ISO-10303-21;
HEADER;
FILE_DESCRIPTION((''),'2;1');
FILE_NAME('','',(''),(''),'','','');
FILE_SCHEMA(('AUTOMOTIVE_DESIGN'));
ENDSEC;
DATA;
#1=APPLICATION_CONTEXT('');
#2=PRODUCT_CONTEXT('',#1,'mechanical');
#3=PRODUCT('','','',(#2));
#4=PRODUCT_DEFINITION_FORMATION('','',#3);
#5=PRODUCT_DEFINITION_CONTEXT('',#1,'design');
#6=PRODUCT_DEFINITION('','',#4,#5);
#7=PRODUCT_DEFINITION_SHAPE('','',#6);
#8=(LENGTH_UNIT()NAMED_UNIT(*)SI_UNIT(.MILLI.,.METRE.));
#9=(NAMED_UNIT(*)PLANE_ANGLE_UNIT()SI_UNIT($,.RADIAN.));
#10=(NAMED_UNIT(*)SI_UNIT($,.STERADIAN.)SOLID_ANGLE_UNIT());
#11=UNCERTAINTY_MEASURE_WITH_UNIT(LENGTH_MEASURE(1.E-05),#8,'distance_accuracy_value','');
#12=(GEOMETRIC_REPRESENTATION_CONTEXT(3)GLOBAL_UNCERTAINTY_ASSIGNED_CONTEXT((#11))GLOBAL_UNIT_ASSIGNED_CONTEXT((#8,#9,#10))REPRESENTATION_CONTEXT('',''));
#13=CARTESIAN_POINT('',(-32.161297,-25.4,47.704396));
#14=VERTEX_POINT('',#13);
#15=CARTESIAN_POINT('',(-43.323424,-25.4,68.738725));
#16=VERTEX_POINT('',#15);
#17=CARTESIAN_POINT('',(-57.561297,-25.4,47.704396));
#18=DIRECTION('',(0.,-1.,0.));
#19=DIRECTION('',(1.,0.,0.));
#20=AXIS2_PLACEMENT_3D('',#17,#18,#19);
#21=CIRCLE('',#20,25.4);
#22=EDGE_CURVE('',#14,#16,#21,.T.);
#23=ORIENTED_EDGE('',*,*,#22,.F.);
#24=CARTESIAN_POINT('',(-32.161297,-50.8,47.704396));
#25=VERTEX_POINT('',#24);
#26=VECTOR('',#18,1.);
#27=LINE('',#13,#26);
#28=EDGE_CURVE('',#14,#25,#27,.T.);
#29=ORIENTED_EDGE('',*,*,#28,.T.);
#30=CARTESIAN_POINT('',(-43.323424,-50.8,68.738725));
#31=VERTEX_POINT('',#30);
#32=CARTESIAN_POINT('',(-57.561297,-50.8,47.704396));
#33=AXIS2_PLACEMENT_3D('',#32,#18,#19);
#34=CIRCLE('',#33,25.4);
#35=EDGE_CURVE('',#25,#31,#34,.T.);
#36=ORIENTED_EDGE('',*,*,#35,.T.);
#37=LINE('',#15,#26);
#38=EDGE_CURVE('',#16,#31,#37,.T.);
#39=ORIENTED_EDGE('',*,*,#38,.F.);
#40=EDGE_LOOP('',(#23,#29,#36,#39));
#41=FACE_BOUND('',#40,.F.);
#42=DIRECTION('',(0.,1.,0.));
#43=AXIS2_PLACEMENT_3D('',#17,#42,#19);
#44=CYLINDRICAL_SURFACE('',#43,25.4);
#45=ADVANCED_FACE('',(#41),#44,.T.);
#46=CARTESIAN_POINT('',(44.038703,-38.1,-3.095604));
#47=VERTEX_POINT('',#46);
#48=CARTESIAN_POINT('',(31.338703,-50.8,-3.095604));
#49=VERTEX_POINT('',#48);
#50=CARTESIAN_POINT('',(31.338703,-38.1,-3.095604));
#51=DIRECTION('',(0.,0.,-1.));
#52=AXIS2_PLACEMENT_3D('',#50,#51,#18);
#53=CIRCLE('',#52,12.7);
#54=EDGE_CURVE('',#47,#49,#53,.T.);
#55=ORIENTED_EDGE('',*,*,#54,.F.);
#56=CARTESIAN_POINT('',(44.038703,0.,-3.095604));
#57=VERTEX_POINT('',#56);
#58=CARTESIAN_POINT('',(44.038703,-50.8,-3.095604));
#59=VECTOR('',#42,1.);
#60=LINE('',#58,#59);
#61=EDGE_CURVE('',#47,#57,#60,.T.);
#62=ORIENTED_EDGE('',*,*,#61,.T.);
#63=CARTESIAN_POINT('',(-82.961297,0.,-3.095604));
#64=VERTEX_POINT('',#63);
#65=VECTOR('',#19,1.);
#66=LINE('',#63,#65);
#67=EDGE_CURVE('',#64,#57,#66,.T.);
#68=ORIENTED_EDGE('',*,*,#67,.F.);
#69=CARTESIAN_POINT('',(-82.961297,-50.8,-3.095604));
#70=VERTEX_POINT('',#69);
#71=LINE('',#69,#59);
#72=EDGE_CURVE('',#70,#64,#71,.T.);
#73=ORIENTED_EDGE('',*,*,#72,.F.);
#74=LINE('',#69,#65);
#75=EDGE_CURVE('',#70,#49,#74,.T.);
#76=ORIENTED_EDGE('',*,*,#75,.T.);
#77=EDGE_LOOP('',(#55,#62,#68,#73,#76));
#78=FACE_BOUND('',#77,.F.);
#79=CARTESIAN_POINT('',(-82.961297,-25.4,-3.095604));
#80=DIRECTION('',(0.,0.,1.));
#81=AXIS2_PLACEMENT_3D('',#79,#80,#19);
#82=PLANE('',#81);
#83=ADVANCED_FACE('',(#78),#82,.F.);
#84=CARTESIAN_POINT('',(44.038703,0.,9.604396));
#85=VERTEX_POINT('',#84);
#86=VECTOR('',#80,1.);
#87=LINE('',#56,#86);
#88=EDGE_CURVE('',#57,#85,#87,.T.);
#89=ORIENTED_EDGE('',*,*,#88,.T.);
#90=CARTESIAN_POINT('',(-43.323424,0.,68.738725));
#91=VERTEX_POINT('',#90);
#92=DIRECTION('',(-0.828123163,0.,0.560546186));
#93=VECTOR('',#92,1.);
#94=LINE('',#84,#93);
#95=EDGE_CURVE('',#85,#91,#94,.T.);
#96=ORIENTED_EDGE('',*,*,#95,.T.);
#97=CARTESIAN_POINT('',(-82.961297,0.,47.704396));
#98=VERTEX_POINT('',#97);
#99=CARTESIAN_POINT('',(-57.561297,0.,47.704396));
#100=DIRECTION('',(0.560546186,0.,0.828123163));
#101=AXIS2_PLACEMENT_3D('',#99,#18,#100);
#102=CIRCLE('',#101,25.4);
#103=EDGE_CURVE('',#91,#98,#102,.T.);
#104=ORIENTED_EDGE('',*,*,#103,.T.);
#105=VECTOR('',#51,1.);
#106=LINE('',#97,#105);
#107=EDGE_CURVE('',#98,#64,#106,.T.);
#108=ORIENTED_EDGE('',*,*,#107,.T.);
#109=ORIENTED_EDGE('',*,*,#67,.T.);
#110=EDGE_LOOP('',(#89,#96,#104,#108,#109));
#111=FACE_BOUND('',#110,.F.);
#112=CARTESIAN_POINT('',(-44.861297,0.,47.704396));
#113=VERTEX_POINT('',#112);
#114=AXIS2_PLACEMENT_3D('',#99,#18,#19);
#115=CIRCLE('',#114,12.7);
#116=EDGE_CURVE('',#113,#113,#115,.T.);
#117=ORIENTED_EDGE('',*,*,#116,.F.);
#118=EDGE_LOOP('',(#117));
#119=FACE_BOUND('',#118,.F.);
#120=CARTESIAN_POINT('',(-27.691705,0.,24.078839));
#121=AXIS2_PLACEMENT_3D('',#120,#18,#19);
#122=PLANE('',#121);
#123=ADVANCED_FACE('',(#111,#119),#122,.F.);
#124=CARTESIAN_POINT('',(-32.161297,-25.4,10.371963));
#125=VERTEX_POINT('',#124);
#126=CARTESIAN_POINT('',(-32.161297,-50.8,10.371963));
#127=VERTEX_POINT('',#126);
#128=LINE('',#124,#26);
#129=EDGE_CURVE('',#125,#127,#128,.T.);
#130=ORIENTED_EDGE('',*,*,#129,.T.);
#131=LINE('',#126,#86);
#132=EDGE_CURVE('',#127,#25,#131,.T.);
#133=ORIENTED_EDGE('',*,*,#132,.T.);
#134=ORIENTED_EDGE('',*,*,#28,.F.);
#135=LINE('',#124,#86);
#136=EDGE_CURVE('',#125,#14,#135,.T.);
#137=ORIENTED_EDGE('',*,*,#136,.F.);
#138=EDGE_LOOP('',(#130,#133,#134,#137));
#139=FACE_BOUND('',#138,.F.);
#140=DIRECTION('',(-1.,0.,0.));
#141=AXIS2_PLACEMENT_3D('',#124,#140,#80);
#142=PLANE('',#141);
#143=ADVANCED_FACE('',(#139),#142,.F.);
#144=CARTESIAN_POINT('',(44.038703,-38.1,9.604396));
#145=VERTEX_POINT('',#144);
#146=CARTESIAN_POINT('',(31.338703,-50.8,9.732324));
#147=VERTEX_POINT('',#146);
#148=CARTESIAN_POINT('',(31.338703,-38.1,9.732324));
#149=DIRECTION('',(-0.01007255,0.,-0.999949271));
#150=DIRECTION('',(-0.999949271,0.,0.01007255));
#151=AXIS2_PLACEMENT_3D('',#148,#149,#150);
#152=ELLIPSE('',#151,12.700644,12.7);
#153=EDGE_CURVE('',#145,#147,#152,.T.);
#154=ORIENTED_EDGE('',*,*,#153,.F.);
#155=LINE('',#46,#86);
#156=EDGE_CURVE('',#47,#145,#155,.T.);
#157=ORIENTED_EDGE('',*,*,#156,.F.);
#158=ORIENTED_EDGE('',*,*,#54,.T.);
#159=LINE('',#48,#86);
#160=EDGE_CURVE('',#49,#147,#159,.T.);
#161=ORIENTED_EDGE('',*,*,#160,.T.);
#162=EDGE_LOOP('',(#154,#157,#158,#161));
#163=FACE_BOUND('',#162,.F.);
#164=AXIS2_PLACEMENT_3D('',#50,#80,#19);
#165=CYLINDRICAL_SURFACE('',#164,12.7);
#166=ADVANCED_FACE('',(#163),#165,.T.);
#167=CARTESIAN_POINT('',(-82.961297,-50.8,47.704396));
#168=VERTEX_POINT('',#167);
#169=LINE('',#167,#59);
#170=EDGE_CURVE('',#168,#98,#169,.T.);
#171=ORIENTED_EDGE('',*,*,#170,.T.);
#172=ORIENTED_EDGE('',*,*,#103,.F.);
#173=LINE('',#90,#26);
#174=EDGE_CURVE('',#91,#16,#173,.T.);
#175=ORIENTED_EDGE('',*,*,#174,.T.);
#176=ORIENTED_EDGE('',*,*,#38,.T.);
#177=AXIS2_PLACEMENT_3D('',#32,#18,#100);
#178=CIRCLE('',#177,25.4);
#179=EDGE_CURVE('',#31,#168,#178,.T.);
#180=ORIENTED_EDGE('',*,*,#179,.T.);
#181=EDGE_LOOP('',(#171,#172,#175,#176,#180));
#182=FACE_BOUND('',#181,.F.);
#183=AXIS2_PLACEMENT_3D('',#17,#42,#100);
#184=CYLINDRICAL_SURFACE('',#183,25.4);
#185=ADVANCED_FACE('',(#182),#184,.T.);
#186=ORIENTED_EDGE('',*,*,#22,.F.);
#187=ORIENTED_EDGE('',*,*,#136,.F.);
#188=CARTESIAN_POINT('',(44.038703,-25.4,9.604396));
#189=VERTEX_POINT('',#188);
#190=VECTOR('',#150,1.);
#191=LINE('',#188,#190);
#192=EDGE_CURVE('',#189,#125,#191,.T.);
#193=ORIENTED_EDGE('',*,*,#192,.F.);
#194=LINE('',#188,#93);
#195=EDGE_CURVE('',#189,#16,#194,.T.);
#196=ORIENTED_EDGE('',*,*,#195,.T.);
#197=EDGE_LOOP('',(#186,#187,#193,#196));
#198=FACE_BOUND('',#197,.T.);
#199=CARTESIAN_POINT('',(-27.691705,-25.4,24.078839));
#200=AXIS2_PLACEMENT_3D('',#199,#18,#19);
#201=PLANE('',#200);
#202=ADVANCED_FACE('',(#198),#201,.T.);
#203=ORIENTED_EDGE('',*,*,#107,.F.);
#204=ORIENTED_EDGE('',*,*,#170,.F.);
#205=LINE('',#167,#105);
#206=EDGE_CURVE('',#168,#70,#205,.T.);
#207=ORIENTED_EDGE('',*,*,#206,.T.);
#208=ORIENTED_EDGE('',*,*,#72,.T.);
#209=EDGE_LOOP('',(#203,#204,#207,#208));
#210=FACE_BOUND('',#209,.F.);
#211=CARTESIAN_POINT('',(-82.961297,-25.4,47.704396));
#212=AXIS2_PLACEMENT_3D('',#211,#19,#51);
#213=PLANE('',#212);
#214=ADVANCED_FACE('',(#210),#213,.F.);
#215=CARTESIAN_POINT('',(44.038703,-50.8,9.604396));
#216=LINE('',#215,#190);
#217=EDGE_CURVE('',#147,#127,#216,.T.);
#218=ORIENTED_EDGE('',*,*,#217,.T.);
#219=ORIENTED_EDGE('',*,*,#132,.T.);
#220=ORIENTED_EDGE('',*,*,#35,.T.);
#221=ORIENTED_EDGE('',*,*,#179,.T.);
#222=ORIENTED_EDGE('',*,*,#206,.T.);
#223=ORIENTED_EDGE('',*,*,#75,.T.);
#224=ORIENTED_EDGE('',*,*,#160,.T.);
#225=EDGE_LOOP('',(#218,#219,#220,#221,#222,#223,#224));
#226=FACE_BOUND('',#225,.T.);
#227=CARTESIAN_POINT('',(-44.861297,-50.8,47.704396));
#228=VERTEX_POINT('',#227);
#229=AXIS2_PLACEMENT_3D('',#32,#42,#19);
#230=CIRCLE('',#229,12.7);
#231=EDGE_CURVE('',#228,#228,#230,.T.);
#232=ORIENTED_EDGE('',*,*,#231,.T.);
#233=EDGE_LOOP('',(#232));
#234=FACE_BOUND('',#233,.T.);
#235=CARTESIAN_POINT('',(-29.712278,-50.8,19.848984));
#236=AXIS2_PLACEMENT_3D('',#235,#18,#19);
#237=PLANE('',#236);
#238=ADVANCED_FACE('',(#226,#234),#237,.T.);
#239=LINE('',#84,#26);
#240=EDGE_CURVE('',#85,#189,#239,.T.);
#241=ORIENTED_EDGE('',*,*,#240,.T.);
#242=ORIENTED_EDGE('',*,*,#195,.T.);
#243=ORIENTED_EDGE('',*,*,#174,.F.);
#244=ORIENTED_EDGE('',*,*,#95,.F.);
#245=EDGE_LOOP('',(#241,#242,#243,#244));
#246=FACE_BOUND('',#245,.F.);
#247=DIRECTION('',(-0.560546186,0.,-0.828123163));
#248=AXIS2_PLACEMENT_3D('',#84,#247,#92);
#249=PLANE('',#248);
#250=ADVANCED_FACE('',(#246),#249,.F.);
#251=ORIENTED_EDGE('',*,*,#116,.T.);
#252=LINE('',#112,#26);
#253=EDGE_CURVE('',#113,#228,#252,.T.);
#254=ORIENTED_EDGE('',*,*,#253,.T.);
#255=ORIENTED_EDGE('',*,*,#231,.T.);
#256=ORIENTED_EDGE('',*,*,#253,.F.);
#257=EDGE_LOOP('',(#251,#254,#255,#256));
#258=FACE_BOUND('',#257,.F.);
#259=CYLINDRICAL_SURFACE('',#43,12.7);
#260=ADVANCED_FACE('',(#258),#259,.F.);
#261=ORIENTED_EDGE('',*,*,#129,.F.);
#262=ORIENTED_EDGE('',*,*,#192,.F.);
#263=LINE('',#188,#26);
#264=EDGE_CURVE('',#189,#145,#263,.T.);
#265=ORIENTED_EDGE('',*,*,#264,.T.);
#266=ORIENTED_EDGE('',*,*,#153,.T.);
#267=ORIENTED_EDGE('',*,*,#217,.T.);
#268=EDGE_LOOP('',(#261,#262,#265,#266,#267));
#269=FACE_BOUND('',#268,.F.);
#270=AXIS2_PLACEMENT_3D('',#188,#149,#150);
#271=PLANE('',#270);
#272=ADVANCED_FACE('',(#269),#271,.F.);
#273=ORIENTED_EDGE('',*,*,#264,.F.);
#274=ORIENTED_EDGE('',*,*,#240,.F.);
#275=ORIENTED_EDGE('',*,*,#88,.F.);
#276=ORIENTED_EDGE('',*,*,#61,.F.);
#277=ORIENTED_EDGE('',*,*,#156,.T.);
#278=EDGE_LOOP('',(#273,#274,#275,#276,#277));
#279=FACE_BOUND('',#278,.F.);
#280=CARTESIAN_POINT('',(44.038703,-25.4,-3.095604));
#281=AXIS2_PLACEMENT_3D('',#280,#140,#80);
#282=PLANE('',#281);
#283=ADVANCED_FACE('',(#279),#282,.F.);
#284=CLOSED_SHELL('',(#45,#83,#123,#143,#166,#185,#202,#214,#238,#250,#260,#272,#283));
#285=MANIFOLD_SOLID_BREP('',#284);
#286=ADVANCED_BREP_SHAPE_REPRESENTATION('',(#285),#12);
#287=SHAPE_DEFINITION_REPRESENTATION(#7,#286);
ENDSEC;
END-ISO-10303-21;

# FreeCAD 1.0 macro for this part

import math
import FreeCAD as App
import Part
import Sketcher

V = App.Vector
Q = App.Units.Quantity


def edges_at(feature, points):
    """Names of the edges that pass closest to the given points."""
    edges = feature.Shape.Edges
    near = lambda p: min(range(len(edges)), key=lambda i: edges[i].distToShape(Part.Vertex(*p))[0])
    return sorted({f"Edge{near(p) + 1}" for p in points})

doc = App.newDocument("Part")
body = doc.addObject("PartDesign::Body", "Body")

sketch1 = body.newObject("Sketcher::SketchObject", "Sketch")
sketch1.AttachmentSupport = (doc.getObject("XZ_Plane"), [""])
sketch1.MapMode = "FlatFace"
sketch1.addGeometry([
    Part.LineSegment(V(44, 10, 0), V(-43, 69, 0)),
    Part.ArcOfCircle(Part.Circle(V(-58, 48, 0), V(0, 0, 1), 25), math.radians(56), math.radians(180)),
    Part.LineSegment(V(-83, 48, 0), V(-83, -3, 0)),
    Part.LineSegment(V(-83, -3, 0), V(44, -3, 0)),
    Part.LineSegment(V(44, -3, 0), V(44, 10, 0)),
    Part.Circle(V(-58, 48, 0), V(0, 0, 1), 13),
], False)
sketch1.addConstraint([
    Sketcher.Constraint("Tangent", 0, 2, 1, 1),
    Sketcher.Constraint("Tangent", 1, 2, 2, 1),
    Sketcher.Constraint("Coincident", 2, 2, 3, 1),
    Sketcher.Constraint("Coincident", 3, 2, 4, 1),
    Sketcher.Constraint("Coincident", 4, 2, 0, 1),
    Sketcher.Constraint("Vertical", 2),
    Sketcher.Constraint("Horizontal", 3),
    Sketcher.Constraint("Vertical", 4),
    Sketcher.Constraint("Coincident", 5, 3, 1, 3),
    Sketcher.Constraint("Diameter", 5, Q("1 in")),
    Sketcher.Constraint("Radius", 1, Q("1 in")),
    Sketcher.Constraint("DistanceX", 3, 1, 3, 2, Q("5 in")),
    Sketcher.Constraint("DistanceY", 2, 2, 2, 1, Q("2 in")),
    Sketcher.Constraint("DistanceY", 4, 1, 4, 2, Q("0.5 in")),
    Sketcher.Constraint("DistanceX", 1, 3, -1, 1, 57.561297),
    Sketcher.Constraint("DistanceY", -1, 1, 1, 3, 47.704396),
])
pad1 = body.newObject("PartDesign::Pad", "Pad")
pad1.Profile = sketch1
pad1.Length = Q("1 in")

sketch2 = body.newObject("Sketcher::SketchObject", "Sketch001")
sketch2.AttachmentSupport = (doc.getObject("XZ_Plane"), [""])
sketch2.MapMode = "FlatFace"
sketch2.AttachmentOffset = App.Placement(V(0, 0, 1 * 25.4), App.Rotation())
sketch2.addGeometry([
    Part.LineSegment(V(44, -3, 0), V(44, 10, 0)),
    Part.LineSegment(V(44, 10, 0), V(-32, 10, 0)),
    Part.LineSegment(V(-32, 10, 0), V(-32, 48, 0)),
    Part.ArcOfCircle(Part.Circle(V(-58, 48, 0), V(0, 0, 1), 25), math.radians(0), math.radians(56)),
    Part.ArcOfCircle(Part.Circle(V(-58, 48, 0), V(0, 0, 1), 25), math.radians(56), math.radians(180)),
    Part.LineSegment(V(-83, 48, 0), V(-83, -3, 0)),
    Part.LineSegment(V(-83, -3, 0), V(44, -3, 0)),
    Part.Circle(V(-58, 48, 0), V(0, 0, 1), 13),
], False)
sketch2.addConstraint([
    Sketcher.Constraint("Coincident", 0, 2, 1, 1),
    Sketcher.Constraint("Coincident", 1, 2, 2, 1),
    Sketcher.Constraint("Tangent", 2, 2, 3, 1),
    Sketcher.Constraint("Tangent", 3, 2, 4, 1),
    Sketcher.Constraint("Tangent", 4, 2, 5, 1),
    Sketcher.Constraint("Coincident", 5, 2, 6, 1),
    Sketcher.Constraint("Coincident", 6, 2, 0, 1),
    Sketcher.Constraint("Vertical", 0),
    Sketcher.Constraint("Vertical", 2),
    Sketcher.Constraint("Vertical", 5),
    Sketcher.Constraint("Horizontal", 6),
    Sketcher.Constraint("Coincident", 7, 3, 3, 3),
    Sketcher.Constraint("Equal", 3, 4),
    Sketcher.Constraint("Diameter", 7, Q("1 in")),
    Sketcher.Constraint("Radius", 3, Q("1 in")),
    Sketcher.Constraint("DistanceX", 6, 1, 6, 2, Q("5 in")),
    Sketcher.Constraint("DistanceY", 5, 2, 5, 1, Q("2 in")),
    Sketcher.Constraint("DistanceY", 0, 1, 0, 2, Q("0.5 in")),
    Sketcher.Constraint("DistanceY", 2, 1, 2, 2, 37.332433),
    Sketcher.Constraint("DistanceY", 2, 2, 3, 2, 21.034328),
    Sketcher.Constraint("DistanceX", 3, 3, -1, 1, 57.561297),
    Sketcher.Constraint("DistanceY", -1, 1, 3, 3, 47.704396),
])
pad2 = body.newObject("PartDesign::Pad", "Pad001")
pad2.Profile = sketch2
pad2.Length = Q("1 in")
doc.recompute()

fillet = body.newObject("PartDesign::Fillet", "Fillet")
fillet.Base = (pad2, edges_at(pad2, [(44.039, -50.8, 3.254)]))
fillet.Radius = Q("0.5 in")

doc.recompute()
